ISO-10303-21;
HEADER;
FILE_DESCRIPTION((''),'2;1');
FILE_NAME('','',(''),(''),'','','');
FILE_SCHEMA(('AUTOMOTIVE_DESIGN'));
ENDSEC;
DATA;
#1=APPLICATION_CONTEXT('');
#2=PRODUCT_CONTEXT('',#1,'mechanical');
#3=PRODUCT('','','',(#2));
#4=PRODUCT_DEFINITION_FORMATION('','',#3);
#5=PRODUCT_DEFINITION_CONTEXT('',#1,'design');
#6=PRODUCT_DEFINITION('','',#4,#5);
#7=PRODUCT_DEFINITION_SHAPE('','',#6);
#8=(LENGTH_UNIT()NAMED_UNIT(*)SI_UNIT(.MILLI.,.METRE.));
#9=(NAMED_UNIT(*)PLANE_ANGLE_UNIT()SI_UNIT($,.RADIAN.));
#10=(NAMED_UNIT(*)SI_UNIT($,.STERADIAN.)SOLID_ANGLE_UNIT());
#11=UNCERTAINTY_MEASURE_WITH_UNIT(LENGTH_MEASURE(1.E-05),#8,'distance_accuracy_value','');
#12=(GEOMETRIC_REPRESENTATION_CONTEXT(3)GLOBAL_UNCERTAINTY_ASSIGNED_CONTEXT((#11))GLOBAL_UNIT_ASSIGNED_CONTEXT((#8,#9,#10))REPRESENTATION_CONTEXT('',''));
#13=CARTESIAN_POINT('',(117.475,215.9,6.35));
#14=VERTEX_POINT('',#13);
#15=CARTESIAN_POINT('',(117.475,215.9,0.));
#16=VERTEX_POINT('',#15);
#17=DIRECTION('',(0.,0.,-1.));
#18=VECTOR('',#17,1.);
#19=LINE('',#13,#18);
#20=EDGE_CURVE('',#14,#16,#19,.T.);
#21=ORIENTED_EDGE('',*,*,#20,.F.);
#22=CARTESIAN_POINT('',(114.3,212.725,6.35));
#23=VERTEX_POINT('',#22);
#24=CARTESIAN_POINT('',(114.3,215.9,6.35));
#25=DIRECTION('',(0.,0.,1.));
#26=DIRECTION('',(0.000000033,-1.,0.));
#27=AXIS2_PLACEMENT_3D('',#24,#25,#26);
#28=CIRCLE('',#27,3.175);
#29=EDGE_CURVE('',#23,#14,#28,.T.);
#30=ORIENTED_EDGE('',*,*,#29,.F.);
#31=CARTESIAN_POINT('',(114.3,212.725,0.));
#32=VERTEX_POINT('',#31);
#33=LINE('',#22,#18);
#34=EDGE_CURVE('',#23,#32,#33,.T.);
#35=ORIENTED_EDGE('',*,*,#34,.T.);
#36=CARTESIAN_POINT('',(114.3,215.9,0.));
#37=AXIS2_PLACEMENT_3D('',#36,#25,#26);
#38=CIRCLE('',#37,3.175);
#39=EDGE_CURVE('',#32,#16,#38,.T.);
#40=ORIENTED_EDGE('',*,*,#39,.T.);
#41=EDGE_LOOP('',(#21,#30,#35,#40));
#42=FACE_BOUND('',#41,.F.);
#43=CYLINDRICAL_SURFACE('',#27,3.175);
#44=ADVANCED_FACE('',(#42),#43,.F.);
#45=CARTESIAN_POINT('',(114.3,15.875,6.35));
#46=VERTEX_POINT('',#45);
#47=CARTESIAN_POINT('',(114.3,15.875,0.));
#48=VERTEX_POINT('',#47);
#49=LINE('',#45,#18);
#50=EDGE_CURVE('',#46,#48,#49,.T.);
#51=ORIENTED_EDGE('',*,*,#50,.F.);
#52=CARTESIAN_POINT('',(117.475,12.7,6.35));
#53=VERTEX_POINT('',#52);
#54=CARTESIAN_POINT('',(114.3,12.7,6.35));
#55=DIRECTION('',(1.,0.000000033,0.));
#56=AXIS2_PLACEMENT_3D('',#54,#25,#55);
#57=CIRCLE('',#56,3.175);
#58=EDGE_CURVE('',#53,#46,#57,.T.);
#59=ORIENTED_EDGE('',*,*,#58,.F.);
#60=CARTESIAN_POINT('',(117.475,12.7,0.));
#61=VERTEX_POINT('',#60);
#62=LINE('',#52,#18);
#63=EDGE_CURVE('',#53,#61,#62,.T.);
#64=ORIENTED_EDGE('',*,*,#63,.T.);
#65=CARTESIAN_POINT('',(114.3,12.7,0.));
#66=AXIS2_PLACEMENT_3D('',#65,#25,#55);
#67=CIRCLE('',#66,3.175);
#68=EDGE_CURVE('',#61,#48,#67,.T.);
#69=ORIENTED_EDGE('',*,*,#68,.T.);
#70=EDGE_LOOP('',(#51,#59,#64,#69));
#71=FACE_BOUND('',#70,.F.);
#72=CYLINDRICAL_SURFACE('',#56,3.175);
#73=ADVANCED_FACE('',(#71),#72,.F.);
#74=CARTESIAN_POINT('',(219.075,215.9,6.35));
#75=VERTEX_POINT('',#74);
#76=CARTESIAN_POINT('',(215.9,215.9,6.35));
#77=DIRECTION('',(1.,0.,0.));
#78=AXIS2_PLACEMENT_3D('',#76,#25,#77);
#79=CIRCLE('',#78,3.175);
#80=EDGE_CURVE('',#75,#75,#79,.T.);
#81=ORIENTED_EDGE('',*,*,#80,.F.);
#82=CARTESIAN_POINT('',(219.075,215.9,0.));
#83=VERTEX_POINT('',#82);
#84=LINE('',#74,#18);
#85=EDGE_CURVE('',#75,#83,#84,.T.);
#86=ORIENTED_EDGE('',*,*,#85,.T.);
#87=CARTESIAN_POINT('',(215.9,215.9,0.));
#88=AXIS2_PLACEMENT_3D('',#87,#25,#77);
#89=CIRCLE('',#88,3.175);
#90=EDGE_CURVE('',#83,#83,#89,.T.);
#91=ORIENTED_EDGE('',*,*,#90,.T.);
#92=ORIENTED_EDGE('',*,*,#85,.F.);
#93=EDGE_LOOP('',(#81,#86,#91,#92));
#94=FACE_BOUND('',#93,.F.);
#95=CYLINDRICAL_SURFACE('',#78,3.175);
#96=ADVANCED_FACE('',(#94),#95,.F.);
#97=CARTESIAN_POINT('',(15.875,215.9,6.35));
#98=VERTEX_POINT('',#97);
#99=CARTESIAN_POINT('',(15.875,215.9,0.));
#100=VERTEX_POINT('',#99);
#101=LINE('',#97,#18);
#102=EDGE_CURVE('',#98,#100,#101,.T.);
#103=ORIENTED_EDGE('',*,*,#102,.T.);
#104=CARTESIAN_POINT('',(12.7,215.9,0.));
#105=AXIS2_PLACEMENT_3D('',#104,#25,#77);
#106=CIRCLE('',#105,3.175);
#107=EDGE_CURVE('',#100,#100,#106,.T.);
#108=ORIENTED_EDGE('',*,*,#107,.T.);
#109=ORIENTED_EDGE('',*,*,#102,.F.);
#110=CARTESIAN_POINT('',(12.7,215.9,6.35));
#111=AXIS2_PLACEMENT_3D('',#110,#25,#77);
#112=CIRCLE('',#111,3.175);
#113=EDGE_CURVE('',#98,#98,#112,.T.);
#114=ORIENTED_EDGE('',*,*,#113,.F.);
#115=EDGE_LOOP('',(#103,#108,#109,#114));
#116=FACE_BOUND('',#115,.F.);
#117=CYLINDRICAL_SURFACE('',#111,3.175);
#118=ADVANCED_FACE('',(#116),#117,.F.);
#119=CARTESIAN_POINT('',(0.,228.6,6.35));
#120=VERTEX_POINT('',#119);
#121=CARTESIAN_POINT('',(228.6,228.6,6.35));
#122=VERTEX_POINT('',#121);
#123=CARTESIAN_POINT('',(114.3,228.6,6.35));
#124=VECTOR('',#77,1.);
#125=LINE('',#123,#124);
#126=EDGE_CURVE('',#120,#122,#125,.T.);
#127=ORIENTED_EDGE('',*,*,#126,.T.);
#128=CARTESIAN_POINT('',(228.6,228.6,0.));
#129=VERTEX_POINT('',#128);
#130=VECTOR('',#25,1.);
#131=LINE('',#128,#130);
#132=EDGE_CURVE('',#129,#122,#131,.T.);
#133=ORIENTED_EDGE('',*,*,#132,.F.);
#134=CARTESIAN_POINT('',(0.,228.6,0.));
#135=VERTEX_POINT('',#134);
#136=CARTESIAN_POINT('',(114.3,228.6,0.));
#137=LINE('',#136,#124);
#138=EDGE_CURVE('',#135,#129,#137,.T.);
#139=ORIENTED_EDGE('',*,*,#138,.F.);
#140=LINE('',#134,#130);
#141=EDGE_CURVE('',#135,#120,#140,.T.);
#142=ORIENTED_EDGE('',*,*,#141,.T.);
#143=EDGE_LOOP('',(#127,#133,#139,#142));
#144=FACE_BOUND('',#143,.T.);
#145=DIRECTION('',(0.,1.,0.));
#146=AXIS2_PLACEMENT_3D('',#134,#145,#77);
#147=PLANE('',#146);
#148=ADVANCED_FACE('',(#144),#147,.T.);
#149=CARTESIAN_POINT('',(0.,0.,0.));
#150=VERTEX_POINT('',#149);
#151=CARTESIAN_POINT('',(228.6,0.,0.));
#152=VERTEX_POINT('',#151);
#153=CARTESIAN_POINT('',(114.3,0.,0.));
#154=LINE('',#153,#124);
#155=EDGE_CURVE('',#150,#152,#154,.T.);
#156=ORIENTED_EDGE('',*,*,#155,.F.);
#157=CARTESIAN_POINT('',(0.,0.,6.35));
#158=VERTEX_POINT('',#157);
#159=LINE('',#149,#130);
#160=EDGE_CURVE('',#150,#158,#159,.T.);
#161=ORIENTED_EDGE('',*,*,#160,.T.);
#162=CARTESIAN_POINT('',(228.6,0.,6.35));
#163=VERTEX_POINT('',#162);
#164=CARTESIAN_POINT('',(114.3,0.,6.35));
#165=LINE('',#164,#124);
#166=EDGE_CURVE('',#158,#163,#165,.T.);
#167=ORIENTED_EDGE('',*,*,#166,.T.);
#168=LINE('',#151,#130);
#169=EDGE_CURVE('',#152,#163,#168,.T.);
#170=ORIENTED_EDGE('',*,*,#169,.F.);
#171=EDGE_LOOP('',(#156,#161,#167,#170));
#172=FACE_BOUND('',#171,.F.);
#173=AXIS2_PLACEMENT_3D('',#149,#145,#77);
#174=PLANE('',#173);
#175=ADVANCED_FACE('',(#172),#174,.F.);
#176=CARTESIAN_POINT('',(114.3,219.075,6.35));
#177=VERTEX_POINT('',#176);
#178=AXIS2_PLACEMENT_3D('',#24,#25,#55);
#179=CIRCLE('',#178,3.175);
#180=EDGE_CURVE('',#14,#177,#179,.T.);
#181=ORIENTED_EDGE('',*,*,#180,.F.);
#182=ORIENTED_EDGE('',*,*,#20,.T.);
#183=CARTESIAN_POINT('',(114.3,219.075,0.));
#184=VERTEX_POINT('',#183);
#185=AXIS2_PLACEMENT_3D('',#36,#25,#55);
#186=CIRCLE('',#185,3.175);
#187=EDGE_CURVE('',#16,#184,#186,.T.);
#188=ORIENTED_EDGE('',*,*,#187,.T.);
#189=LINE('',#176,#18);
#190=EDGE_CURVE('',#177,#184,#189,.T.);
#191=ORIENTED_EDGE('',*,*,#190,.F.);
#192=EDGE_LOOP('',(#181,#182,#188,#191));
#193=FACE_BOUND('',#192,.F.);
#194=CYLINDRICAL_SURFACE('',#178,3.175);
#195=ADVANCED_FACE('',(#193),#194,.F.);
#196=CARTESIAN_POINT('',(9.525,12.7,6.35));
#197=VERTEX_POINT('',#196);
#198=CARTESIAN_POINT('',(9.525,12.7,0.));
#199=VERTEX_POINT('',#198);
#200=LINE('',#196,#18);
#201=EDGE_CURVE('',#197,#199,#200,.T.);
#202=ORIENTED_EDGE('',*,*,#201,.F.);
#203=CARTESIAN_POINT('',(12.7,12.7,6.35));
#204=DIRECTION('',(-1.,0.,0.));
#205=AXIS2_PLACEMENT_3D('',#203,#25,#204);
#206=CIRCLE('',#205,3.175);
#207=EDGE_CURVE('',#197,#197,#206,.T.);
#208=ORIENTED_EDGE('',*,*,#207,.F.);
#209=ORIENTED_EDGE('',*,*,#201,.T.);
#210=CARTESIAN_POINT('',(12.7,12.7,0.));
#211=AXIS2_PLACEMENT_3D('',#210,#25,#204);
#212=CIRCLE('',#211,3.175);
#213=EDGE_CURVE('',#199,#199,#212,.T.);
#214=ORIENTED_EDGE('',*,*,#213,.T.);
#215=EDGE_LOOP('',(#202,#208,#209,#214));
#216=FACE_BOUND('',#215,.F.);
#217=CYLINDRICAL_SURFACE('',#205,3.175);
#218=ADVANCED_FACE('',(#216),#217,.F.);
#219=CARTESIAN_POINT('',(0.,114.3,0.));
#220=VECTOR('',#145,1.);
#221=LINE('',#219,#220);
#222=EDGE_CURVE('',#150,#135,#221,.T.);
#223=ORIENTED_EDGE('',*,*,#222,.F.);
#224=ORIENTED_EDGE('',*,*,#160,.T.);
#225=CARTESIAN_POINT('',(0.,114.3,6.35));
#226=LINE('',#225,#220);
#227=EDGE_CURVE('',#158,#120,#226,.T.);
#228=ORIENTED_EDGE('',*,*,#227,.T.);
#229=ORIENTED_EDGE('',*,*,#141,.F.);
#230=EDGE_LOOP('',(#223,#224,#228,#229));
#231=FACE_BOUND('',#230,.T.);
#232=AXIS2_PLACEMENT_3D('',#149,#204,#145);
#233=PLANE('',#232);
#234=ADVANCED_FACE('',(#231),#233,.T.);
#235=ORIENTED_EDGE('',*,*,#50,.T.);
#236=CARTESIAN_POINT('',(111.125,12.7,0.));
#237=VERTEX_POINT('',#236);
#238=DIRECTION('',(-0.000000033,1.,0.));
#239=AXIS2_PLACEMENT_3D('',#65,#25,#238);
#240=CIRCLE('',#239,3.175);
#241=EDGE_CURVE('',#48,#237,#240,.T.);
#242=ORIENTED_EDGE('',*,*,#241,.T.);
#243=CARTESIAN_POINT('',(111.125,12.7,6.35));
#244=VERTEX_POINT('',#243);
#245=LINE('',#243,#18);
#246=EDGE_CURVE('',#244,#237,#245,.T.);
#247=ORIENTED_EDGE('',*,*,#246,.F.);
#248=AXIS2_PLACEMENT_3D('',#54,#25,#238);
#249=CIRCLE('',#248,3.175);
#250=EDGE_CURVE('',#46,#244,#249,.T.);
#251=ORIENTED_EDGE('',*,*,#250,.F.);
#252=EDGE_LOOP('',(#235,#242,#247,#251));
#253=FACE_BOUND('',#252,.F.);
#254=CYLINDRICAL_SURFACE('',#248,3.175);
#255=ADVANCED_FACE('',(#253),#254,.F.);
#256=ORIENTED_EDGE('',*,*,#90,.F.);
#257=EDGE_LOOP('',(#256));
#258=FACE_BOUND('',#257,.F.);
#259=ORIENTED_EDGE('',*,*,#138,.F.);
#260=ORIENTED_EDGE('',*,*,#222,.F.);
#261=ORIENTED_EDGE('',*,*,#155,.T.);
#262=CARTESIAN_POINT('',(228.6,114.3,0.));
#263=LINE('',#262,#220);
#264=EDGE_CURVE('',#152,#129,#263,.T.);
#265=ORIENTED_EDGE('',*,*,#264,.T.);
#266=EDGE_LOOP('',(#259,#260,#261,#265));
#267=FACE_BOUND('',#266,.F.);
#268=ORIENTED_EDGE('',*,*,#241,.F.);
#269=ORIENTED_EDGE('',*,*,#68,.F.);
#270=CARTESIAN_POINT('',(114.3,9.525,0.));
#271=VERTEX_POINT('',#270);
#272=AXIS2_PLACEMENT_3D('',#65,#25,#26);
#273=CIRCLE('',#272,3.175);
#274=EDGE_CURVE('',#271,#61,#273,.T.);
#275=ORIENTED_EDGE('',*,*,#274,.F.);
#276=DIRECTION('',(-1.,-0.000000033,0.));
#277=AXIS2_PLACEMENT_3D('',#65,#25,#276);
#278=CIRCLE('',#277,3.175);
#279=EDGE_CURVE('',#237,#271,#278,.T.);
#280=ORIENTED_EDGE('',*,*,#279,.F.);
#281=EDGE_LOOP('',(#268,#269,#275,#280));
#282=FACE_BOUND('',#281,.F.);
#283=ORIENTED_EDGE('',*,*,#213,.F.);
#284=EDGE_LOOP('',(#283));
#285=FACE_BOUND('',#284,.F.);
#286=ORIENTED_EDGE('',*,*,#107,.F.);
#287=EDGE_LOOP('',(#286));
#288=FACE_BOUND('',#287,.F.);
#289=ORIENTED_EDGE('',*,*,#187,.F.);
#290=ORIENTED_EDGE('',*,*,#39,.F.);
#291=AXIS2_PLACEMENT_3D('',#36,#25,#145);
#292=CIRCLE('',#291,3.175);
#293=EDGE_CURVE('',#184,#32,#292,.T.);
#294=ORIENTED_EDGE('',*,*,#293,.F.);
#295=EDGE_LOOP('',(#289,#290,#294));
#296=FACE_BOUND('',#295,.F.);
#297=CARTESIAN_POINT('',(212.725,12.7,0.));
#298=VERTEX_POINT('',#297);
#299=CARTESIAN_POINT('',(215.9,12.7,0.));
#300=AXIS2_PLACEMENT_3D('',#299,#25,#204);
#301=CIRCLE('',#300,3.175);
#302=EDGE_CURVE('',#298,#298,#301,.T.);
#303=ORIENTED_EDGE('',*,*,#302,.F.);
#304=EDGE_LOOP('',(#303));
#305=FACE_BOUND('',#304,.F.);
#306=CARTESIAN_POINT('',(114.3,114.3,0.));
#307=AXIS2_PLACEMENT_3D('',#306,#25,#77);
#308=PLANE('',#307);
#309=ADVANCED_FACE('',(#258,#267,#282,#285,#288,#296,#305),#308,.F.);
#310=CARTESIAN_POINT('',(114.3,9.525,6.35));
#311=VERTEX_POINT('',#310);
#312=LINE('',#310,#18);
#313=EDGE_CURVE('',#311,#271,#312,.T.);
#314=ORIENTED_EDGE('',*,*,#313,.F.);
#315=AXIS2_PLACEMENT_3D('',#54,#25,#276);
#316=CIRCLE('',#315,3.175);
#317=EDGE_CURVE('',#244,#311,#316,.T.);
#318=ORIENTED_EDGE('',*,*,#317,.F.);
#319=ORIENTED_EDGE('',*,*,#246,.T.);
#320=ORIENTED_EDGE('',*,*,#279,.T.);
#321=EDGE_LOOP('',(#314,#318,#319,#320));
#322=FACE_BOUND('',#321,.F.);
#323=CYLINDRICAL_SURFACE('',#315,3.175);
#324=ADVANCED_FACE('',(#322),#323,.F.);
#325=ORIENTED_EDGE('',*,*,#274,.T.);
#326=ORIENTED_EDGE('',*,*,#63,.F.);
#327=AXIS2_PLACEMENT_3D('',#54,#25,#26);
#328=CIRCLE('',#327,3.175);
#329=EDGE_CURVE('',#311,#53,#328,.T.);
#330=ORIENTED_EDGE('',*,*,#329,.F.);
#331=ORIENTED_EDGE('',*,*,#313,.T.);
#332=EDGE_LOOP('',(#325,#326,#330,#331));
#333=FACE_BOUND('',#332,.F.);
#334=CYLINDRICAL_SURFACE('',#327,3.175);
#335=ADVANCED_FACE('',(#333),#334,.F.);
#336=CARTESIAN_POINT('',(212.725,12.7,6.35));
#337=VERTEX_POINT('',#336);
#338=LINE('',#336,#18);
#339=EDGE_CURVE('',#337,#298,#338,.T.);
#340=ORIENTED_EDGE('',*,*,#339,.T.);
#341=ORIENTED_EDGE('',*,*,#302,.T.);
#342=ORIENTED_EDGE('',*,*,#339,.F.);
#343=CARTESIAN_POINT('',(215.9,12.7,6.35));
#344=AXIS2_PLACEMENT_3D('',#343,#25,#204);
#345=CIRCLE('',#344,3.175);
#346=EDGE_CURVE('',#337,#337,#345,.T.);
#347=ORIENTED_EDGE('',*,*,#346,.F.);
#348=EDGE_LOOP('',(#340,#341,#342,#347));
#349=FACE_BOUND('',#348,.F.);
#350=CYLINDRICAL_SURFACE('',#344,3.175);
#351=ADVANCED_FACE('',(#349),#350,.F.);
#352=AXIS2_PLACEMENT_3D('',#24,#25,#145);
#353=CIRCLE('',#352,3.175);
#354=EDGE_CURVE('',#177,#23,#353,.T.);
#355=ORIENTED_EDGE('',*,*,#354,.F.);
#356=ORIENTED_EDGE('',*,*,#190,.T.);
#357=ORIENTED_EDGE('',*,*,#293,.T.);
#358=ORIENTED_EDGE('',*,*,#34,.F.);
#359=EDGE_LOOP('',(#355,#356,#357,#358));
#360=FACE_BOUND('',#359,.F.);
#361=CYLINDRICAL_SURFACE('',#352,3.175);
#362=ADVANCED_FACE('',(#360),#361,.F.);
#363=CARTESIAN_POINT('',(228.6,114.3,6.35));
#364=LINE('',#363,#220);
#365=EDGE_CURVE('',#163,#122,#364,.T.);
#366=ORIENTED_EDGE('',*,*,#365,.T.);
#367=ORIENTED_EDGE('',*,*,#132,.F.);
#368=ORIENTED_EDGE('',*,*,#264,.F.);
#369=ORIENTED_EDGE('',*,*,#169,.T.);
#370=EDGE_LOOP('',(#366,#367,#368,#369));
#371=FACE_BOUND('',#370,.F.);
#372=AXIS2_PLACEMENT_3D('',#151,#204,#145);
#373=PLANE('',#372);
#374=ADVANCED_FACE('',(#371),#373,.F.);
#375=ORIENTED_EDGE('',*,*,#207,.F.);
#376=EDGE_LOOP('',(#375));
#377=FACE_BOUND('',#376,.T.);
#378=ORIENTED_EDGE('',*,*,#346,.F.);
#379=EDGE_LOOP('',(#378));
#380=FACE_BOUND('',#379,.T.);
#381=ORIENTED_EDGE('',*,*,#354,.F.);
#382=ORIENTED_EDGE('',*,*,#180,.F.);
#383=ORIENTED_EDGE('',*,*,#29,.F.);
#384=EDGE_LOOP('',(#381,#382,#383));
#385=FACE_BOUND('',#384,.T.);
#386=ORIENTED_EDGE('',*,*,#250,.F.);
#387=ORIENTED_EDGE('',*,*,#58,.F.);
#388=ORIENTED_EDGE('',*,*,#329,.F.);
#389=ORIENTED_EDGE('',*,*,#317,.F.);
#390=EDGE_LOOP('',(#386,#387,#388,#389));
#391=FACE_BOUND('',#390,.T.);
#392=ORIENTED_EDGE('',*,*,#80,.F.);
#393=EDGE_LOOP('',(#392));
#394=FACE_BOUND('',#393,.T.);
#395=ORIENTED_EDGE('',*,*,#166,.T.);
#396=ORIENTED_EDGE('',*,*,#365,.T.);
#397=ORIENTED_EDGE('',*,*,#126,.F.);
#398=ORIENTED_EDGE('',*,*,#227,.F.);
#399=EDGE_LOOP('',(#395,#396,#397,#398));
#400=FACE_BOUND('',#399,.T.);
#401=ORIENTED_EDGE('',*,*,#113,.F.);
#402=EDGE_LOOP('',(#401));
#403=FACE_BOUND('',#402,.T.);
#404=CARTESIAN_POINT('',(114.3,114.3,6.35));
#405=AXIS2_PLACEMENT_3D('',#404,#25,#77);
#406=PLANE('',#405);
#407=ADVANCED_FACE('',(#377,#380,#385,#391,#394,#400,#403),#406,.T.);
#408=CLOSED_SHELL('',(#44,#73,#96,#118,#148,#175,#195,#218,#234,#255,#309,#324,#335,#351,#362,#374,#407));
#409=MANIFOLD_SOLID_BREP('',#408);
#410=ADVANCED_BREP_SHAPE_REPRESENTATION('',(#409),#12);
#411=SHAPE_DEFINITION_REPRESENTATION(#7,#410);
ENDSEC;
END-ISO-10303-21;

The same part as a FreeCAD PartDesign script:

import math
import FreeCAD as App
import Part
import Sketcher
from FreeCAD import Vector
Q = App.Units.Quantity


def add_polygon(sketch, points):
    """Adds a closed chain of lines whose ends are joined by coincident constraints."""
    first, n = sketch.GeometryCount, len(points)
    for a, b in zip(points, points[1:] + points[:1]):
        sketch.addGeometry(Part.LineSegment(App.Vector(*a, 0), App.Vector(*b, 0)), False)
    for i in range(n):
        sketch.addConstraint(Sketcher.Constraint("Coincident", first + i, 2, first + (i + 1) % n, 1))

doc = App.newDocument("Part")
body = doc.addObject("PartDesign::Body", "Body")

sketch1 = body.newObject("Sketcher::SketchObject", "Sketch")
sketch1.AttachmentSupport = (doc.getObject("XY_Plane"), [""])
sketch1.MapMode = "FlatFace"
add_polygon(sketch1, [(0, 229), (0, 0), (229, 0), (229, 229)])
sketch1.addConstraint([
    Sketcher.Constraint("Vertical", 0),
    Sketcher.Constraint("Horizontal", 1),
    Sketcher.Constraint("Vertical", 2),
    Sketcher.Constraint("Horizontal", 3),
    Sketcher.Constraint("Coincident", 0, 2, -1, 1),
    Sketcher.Constraint("Equal", 3, 0),
    Sketcher.Constraint("DistanceX", 1, 1, 1, 2, Q("9 in")),
])
pad1 = body.newObject("PartDesign::Pad", "Pad")
pad1.Profile = sketch1
pad1.Length = Q("0.25 in")

sketch2 = body.newObject("Sketcher::SketchObject", "Sketch001")
sketch2.AttachmentSupport = (doc.getObject("XY_Plane"), [""])
sketch2.MapMode = "FlatFace"
sketch2.AttachmentOffset = App.Placement(Vector(0, 0, 0.25 * 25.4), App.Rotation())
sketch2.addGeometry([
    Part.Circle(Vector(12.7, 12.7, 0), Vector(0, 0, 1), 3.2),
    Part.ArcOfCircle(Part.Circle(Vector(114.3, 215.9, 0), Vector(0, 0, 1), 3.2), math.radians(90), math.radians(270)),
    Part.ArcOfCircle(Part.Circle(Vector(114.3, 215.9, 0), Vector(0, 0, 1), 3.2), math.radians(-90), math.radians(0)),
    Part.ArcOfCircle(Part.Circle(Vector(114.3, 215.9, 0), Vector(0, 0, 1), 3.2), math.radians(0), math.radians(90)),
    Part.Circle(Vector(215.9, 12.7, 0), Vector(0, 0, 1), 3.2),
    Part.ArcOfCircle(Part.Circle(Vector(114.3, 12.7, 0), Vector(0, 0, 1), 3.2), math.radians(90), math.radians(180)),
    Part.ArcOfCircle(Part.Circle(Vector(114.3, 12.7, 0), Vector(0, 0, 1), 3.2), math.radians(-180), math.radians(-90)),
    Part.ArcOfCircle(Part.Circle(Vector(114.3, 12.7, 0), Vector(0, 0, 1), 3.2), math.radians(-90), math.radians(0)),
    Part.ArcOfCircle(Part.Circle(Vector(114.3, 12.7, 0), Vector(0, 0, 1), 3.2), math.radians(0), math.radians(90)),
    Part.Circle(Vector(12.7, 215.9, 0), Vector(0, 0, 1), 3.2),
    Part.Circle(Vector(215.9, 215.9, 0), Vector(0, 0, 1), 3.2),
], False)
sketch2.addConstraint([
    Sketcher.Constraint("Tangent", 1, 2, 2, 1),
    Sketcher.Constraint("Tangent", 2, 2, 3, 1),
    Sketcher.Constraint("Tangent", 3, 2, 1, 1),
    Sketcher.Constraint("Tangent", 5, 2, 6, 1),
    Sketcher.Constraint("Tangent", 6, 2, 7, 1),
    Sketcher.Constraint("Tangent", 7, 2, 8, 1),
    Sketcher.Constraint("Tangent", 8, 2, 5, 1),
    Sketcher.Constraint("Equal", 0, 1),
    Sketcher.Constraint("Equal", 3, 4),
    Sketcher.Constraint("Equal", 4, 5),
    Sketcher.Constraint("Equal", 5, 6),
    Sketcher.Constraint("Equal", 8, 9),
    Sketcher.Constraint("Equal", 9, 10),
    Sketcher.Constraint("Horizontal", 0, 3, 4, 3),
    Sketcher.Constraint("Horizontal", 4, 3, 5, 3),
    Sketcher.Constraint("Horizontal", 3, 3, 9, 3),
    Sketcher.Constraint("Horizontal", 9, 3, 10, 3),
    Sketcher.Constraint("Horizontal", 10, 3, 2, 2),
    Sketcher.Constraint("Horizontal", 8, 3, 5, 2),
    Sketcher.Constraint("Horizontal", 5, 2, 7, 2),
    Sketcher.Constraint("Vertical", 3, 3, 5, 3),
    Sketcher.Constraint("Vertical", 0, 3, 9, 3),
    Sketcher.Constraint("Vertical", 4, 3, 10, 3),
    Sketcher.Constraint("Vertical", 8, 3, 1, 2),
    Sketcher.Constraint("Vertical", 1, 2, 3, 2),
    Sketcher.Constraint("Vertical", 3, 2, 6, 2),
    Sketcher.Constraint("Vertical", 6, 2, 8, 2),
    Sketcher.Constraint("Diameter", 0, Q("0.25 in")),
    Sketcher.Constraint("DistanceX", 0, 3, 1, 3, Q("4 in")),
    Sketcher.Constraint("DistanceY", 0, 3, 1, 3, Q("8 in")),
    Sketcher.Constraint("DistanceX", 0, 3, 4, 3, Q("8 in")),
    Sketcher.Constraint("DistanceX", -1, 1, 0, 3, Q("0.5 in")),
    Sketcher.Constraint("DistanceY", -1, 1, 0, 3, Q("0.5 in")),
])
pocket1 = body.newObject("PartDesign::Pocket", "Pocket")
pocket1.Profile = sketch2
pocket1.Length = Q("1 in")

doc.recompute()
